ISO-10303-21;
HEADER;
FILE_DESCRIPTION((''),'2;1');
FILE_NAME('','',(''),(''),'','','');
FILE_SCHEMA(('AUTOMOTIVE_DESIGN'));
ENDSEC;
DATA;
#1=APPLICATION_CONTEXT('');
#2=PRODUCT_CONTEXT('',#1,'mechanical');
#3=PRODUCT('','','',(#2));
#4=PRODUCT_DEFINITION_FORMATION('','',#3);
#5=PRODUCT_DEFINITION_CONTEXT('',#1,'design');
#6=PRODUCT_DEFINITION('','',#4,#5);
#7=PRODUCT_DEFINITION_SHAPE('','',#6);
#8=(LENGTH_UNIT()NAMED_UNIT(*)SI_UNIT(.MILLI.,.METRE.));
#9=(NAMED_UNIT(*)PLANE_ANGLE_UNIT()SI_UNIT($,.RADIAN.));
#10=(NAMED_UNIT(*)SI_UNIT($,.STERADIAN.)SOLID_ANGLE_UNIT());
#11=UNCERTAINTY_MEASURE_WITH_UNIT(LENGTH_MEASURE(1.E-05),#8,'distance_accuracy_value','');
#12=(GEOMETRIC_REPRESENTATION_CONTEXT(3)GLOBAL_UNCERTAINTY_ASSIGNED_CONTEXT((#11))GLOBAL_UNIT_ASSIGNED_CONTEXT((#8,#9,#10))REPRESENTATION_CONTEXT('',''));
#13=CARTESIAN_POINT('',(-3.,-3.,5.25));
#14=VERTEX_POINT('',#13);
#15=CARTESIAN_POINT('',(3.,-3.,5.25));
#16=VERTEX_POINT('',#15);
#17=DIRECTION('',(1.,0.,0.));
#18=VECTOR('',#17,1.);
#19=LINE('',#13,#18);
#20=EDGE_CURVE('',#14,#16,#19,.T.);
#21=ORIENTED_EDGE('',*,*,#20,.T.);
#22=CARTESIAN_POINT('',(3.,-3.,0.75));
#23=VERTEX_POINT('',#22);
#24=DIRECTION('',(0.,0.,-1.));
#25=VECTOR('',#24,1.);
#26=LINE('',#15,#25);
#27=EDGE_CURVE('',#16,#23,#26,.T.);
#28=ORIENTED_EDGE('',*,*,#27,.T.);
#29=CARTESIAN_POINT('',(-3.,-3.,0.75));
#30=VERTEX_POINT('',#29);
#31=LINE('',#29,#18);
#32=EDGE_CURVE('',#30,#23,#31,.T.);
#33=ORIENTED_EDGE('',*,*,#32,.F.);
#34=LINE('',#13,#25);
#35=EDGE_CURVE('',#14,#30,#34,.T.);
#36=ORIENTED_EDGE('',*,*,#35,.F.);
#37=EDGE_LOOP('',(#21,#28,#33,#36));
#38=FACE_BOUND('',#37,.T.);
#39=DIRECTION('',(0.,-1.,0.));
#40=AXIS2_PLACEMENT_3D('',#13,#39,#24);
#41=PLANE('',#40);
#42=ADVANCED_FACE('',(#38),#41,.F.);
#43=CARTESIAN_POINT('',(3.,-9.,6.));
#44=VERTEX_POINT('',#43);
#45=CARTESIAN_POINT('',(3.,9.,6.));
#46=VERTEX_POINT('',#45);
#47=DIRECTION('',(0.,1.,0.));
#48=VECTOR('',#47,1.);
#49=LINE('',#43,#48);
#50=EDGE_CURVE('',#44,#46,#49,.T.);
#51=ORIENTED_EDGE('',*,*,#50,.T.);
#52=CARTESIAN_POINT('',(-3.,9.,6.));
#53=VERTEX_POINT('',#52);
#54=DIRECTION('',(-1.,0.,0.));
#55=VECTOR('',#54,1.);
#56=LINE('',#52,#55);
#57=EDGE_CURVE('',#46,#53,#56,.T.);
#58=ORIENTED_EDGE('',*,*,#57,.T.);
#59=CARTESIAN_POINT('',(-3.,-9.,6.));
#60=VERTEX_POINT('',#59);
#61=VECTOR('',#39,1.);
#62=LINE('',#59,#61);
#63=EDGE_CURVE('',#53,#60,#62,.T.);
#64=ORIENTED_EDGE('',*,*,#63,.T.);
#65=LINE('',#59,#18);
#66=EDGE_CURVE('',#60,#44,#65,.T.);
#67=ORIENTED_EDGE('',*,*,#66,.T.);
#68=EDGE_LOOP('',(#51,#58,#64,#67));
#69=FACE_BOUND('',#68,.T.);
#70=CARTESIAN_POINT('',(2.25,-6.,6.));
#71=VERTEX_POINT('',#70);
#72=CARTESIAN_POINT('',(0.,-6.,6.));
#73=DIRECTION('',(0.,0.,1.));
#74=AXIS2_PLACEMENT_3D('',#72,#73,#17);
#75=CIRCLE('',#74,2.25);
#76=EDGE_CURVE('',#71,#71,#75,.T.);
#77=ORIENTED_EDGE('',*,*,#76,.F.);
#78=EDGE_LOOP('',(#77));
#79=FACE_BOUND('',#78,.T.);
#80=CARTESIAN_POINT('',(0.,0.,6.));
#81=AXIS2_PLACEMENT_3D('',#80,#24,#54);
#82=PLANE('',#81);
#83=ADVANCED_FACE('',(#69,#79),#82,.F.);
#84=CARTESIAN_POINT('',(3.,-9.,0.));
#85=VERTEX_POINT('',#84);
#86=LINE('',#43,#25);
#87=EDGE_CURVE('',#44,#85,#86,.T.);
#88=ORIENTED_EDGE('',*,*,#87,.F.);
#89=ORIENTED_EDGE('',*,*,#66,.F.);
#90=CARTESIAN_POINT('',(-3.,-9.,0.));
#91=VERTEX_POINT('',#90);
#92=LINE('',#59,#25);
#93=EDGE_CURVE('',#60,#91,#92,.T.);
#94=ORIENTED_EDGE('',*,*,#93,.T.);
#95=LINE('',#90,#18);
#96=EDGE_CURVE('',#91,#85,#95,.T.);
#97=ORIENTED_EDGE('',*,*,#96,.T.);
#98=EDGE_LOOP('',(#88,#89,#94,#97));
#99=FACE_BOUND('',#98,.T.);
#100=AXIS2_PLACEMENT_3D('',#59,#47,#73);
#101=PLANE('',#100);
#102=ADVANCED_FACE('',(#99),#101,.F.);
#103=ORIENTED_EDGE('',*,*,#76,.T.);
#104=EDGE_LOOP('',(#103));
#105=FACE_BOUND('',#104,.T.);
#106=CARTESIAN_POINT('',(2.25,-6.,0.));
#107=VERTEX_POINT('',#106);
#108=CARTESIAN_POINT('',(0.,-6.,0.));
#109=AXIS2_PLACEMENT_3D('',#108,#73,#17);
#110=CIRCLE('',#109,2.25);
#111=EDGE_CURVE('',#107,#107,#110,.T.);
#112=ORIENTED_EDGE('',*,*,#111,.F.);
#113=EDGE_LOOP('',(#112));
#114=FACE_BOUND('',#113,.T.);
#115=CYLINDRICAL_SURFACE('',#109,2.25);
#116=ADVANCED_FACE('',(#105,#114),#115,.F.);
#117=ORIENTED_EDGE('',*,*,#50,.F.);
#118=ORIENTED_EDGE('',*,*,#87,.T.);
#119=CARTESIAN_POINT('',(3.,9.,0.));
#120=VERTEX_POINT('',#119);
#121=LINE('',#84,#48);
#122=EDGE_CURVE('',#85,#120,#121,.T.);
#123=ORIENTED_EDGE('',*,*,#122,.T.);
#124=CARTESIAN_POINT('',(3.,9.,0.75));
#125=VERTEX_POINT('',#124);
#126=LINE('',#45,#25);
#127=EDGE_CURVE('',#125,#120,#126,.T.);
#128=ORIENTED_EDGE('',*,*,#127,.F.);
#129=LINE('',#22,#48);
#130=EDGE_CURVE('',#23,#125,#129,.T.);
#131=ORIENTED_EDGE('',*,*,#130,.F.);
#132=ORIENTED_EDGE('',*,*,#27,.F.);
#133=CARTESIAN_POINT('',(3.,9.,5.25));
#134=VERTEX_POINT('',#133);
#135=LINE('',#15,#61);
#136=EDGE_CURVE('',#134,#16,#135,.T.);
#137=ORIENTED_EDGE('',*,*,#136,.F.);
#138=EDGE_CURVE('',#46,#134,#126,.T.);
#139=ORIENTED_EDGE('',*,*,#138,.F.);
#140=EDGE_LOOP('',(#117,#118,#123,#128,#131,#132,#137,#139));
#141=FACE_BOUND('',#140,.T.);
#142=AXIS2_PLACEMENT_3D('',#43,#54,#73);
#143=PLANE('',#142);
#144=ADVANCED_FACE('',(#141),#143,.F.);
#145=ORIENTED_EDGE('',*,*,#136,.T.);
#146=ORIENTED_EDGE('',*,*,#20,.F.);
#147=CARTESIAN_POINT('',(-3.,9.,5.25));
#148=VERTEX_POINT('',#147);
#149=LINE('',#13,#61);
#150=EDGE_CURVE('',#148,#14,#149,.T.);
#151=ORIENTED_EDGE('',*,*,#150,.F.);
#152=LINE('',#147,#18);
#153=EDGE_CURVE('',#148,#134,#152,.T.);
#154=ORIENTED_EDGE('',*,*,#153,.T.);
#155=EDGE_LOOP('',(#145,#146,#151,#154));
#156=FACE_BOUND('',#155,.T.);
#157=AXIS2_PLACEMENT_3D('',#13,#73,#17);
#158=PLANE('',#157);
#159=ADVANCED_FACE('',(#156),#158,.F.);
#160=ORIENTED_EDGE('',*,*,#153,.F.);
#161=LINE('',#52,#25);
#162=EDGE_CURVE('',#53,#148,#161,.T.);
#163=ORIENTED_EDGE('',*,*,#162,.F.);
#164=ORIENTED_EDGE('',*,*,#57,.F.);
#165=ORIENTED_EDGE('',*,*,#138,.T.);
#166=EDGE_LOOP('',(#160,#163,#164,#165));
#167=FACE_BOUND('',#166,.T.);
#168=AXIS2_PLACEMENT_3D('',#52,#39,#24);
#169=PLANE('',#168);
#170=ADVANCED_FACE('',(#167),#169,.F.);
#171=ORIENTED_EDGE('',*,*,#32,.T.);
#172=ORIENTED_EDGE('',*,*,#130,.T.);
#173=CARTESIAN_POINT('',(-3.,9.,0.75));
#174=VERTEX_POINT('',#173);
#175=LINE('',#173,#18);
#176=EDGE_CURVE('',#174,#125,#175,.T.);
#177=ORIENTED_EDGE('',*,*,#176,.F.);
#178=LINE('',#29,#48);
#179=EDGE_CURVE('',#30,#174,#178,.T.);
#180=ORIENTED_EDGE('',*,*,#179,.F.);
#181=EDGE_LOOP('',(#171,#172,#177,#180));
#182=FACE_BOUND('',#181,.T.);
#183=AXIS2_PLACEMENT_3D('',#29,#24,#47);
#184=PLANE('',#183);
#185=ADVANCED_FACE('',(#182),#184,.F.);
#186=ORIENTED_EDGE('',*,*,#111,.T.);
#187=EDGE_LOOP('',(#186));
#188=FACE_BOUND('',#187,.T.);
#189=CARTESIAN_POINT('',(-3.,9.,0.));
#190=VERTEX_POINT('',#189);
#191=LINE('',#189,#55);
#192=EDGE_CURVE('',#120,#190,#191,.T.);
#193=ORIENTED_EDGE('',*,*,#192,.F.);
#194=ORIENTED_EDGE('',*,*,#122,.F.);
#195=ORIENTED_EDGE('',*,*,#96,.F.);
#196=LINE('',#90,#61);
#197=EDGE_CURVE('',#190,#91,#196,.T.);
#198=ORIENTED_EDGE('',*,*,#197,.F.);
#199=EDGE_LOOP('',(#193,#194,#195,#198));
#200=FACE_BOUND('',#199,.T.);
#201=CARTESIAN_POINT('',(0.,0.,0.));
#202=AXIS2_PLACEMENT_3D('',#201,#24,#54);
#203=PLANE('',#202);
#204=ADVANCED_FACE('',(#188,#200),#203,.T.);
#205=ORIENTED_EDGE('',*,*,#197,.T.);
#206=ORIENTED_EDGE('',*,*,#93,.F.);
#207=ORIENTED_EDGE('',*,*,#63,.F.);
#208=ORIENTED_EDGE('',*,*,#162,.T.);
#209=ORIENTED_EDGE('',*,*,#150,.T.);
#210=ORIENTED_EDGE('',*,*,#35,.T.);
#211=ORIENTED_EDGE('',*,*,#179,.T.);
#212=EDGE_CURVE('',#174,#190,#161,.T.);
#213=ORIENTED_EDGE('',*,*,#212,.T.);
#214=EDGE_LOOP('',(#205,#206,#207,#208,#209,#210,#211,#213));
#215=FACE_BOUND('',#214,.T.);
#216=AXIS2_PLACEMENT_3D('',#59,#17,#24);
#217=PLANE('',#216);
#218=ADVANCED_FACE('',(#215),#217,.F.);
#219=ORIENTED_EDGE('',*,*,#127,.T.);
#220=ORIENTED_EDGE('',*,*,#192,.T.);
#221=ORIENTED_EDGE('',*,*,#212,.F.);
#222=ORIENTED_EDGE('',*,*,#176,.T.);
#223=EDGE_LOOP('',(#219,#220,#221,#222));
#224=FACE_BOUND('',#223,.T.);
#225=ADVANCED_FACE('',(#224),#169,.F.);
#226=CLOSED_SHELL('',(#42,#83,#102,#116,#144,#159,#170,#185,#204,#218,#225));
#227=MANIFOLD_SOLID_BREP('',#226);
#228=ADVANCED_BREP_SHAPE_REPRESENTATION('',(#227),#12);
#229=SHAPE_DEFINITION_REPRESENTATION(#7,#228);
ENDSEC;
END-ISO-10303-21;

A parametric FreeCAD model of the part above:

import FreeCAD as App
import Part
import Sketcher

V = App.Vector

doc = App.newDocument("Part")
body = doc.addObject("PartDesign::Body", "Body")

sketch1 = doc.addObject("Sketcher::SketchObject", "Sketch")
body.addObject(sketch1)
sketch1.AttachmentSupport = (doc.XY_Plane, [""])
sketch1.MapMode = "FlatFace"
sketch1.addGeometry([
    Part.LineSegment(V(-3, 9, 0), V(-3, -9, 0)),
    Part.LineSegment(V(-3, -9, 0), V(3, -9, 0)),
    Part.LineSegment(V(3, -9, 0), V(3, 9, 0)),
    Part.LineSegment(V(3, 9, 0), V(-3, 9, 0)),
], False)
sketch1.addConstraint([
    Sketcher.Constraint("Coincident", 0, 2, 1, 1),
    Sketcher.Constraint("Coincident", 1, 2, 2, 1),
    Sketcher.Constraint("Coincident", 2, 2, 3, 1),
    Sketcher.Constraint("Coincident", 3, 2, 0, 1),
    Sketcher.Constraint("Vertical", 0),
    Sketcher.Constraint("Horizontal", 1),
    Sketcher.Constraint("Vertical", 2),
    Sketcher.Constraint("Horizontal", 3),
    Sketcher.Constraint("Symmetric", 0, 2, 2, 2, -1, 1),
    Sketcher.Constraint("DistanceX", 1, 1, 1, 2, 6.0),
    Sketcher.Constraint("DistanceY", 0, 2, 0, 1, 18.0),
])
pad1 = doc.addObject("PartDesign::Pad", "Pad")
body.addObject(pad1)
pad1.Profile = sketch1
pad1.Length = 6

sketch2 = doc.addObject("Sketcher::SketchObject", "Sketch001")
body.addObject(sketch2)
sketch2.AttachmentSupport = (doc.XY_Plane, [""])
sketch2.MapMode = "FlatFace"
sketch2.AttachmentOffset = App.Placement(V(0, 0, 6), App.Rotation())
sketch2.addGeometry(Part.Circle(V(0, -6, 0), V(0, 0, 1), 2.25), False)
sketch2.addConstraint([
    Sketcher.Constraint("PointOnObject", 0, 3, -2),
    Sketcher.Constraint("Diameter", 0, 4.5),
    Sketcher.Constraint("DistanceY", 0, 3, -1, 1, 6.0),
])
pocket1 = doc.addObject("PartDesign::Pocket", "Pocket")
body.addObject(pocket1)
pocket1.Profile = sketch2
pocket1.Type = "ThroughAll"

sketch3 = doc.addObject("Sketcher::SketchObject", "Sketch002")
body.addObject(sketch3)
sketch3.AttachmentSupport = (doc.YZ_Plane, [""])
sketch3.MapMode = "FlatFace"
sketch3.AttachmentOffset = App.Placement(V(0, 0, 3), App.Rotation())
sketch3.addGeometry([
    Part.LineSegment(V(9, 5.25, 0), V(-3, 5.25, 0)),
    Part.LineSegment(V(-3, 5.25, 0), V(-3, 0.75, 0)),
    Part.LineSegment(V(-3, 0.75, 0), V(9, 0.75, 0)),
    Part.LineSegment(V(9, 0.75, 0), V(9, 5.25, 0)),
], False)
sketch3.addConstraint([
    Sketcher.Constraint("Coincident", 0, 2, 1, 1),
    Sketcher.Constraint("Coincident", 1, 2, 2, 1),
    Sketcher.Constraint("Coincident", 2, 2, 3, 1),
    Sketcher.Constraint("Coincident", 3, 2, 0, 1),
    Sketcher.Constraint("Horizontal", 0),
    Sketcher.Constraint("Vertical", 1),
    Sketcher.Constraint("Horizontal", 2),
    Sketcher.Constraint("Vertical", 3),
    Sketcher.Constraint("DistanceX", 0, 2, 0, 1, 12.0),
    Sketcher.Constraint("DistanceY", 1, 2, 1, 1, 4.5),
    Sketcher.Constraint("DistanceX", 0, 2, -1, 1, 3.0),
    Sketcher.Constraint("DistanceY", -1, 1, 0, 2, 5.25),
])
pocket2 = doc.addObject("PartDesign::Pocket", "Pocket001")
body.addObject(pocket2)
pocket2.Profile = sketch3
pocket2.Type = "ThroughAll"

doc.recompute()
